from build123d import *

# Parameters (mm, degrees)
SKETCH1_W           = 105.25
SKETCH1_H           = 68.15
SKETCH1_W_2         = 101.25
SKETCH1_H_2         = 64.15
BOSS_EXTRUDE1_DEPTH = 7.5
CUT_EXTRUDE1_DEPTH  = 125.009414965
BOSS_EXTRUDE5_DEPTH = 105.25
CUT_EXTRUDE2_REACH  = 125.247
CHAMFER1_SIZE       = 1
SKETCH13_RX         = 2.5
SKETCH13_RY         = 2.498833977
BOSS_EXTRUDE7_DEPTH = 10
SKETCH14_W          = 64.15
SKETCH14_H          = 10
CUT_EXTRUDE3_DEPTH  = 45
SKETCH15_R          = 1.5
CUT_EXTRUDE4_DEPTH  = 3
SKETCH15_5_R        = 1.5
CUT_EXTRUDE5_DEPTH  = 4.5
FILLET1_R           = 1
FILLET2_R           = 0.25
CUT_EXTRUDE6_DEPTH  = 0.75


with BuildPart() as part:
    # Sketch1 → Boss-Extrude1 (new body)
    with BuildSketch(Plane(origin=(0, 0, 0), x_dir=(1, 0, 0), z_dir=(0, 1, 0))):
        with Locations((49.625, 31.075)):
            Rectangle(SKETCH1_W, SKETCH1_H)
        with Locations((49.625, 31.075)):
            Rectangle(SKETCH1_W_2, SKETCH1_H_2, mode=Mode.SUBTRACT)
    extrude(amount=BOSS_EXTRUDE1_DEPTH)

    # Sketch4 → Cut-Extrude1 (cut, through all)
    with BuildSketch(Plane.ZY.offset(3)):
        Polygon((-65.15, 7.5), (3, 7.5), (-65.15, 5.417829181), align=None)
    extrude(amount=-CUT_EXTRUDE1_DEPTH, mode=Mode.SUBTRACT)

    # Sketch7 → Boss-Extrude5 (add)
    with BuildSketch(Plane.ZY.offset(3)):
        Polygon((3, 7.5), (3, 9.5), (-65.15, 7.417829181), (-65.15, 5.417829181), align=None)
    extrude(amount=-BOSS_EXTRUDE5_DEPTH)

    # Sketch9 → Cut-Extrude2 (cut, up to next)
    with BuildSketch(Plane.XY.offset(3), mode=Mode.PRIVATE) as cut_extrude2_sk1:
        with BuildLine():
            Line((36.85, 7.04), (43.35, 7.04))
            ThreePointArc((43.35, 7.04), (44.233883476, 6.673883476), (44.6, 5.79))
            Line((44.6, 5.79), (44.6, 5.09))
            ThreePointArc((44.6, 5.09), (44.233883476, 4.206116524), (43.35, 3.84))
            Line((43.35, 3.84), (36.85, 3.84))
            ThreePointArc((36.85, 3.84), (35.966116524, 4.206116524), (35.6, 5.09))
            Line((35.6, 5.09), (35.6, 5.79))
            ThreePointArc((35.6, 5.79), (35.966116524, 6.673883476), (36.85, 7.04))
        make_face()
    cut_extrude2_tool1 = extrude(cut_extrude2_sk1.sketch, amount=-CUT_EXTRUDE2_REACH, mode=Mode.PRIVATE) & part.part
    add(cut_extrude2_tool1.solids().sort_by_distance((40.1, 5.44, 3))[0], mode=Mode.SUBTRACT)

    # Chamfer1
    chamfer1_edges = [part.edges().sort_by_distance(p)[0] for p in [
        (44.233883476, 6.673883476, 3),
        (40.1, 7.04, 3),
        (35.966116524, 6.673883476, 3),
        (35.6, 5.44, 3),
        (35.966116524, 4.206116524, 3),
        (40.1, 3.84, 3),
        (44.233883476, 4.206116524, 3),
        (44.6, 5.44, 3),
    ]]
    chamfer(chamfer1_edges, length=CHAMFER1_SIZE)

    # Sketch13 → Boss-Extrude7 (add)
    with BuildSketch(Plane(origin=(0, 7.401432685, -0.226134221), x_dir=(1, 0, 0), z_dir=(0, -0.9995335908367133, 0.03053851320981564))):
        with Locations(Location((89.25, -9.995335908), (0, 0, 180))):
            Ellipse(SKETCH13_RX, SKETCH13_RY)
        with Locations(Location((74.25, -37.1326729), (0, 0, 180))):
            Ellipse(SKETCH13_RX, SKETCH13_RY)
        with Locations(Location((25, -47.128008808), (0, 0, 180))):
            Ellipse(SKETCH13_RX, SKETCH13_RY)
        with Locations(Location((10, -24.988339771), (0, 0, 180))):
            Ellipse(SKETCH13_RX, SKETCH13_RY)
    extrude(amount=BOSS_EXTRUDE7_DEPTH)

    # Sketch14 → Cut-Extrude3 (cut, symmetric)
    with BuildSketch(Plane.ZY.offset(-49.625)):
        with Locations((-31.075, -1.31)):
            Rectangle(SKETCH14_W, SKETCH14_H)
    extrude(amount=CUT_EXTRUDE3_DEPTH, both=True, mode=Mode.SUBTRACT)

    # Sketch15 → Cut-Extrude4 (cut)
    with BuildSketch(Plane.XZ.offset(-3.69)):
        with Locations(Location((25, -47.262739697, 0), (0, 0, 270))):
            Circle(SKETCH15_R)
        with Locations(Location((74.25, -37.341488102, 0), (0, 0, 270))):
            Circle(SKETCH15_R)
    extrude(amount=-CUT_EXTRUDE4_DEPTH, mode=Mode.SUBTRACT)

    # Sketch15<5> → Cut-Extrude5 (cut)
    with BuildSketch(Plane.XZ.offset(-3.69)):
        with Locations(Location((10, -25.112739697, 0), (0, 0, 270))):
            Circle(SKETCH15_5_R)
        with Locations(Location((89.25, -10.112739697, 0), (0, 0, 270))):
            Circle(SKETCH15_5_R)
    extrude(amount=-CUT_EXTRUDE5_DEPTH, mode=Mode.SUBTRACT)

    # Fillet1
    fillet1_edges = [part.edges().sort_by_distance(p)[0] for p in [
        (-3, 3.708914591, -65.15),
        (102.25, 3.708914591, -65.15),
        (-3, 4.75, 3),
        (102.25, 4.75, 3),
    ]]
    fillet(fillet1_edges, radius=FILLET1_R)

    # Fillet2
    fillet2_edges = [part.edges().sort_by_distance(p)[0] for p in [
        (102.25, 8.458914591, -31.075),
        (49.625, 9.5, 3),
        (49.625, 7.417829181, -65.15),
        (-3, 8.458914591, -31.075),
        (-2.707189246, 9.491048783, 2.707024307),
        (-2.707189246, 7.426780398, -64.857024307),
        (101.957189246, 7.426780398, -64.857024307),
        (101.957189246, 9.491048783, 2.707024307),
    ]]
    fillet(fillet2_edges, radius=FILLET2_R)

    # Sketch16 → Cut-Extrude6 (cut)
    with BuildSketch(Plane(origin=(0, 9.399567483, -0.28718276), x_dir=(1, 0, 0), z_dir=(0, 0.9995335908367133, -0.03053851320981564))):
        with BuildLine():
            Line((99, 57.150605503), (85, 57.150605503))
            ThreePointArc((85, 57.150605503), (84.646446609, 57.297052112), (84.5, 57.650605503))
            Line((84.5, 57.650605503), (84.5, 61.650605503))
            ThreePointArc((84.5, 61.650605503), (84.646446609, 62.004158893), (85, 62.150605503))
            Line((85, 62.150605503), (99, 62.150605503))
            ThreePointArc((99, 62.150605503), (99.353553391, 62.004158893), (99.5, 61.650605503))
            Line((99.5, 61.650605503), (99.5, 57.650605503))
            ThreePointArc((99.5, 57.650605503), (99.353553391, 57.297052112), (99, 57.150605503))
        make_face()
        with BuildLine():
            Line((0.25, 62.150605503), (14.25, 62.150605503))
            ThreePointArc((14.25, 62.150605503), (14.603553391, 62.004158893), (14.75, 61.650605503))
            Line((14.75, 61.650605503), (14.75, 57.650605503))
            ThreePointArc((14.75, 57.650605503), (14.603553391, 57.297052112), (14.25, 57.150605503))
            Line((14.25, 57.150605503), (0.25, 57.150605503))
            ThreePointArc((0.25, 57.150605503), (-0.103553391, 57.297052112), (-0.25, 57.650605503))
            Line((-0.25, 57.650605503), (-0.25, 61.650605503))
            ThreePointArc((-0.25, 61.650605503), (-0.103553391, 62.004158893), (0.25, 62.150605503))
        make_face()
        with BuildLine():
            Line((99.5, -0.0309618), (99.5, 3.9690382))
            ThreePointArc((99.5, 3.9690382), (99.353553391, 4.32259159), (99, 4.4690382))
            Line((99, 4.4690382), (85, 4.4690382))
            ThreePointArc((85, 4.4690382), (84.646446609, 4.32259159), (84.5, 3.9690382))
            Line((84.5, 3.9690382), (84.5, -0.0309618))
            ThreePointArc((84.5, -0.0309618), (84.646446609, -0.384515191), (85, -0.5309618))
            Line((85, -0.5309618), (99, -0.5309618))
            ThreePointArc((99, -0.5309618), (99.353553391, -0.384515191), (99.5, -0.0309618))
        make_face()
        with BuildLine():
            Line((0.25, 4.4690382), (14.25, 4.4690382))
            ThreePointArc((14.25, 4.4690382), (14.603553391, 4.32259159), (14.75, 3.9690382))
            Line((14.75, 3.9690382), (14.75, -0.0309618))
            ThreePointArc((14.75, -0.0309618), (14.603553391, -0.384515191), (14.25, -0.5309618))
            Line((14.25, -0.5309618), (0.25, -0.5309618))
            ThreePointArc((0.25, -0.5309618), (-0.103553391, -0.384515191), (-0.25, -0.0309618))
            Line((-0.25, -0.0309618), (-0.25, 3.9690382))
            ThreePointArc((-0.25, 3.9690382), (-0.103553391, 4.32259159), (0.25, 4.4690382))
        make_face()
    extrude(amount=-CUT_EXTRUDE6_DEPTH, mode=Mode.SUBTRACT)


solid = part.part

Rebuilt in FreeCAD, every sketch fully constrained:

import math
import FreeCAD as App
import Part
import Sketcher

V = App.Vector
Q = App.Units.Quantity


def edges_at(feature, points):
    """Names of the edges that pass closest to the given points."""
    edges = feature.Shape.Edges
    near = lambda p: min(range(len(edges)), key=lambda i: edges[i].distToShape(Part.Vertex(*p))[0])
    return sorted({f"Edge{near(p) + 1}" for p in points})

doc = App.newDocument("Part")
body = doc.addObject("PartDesign::Body", "Body")

sketch1 = doc.addObject("Sketcher::SketchObject", "Sketch")
body.addObject(sketch1)
sketch1.AttachmentSupport = (doc.XZ_Plane, [""])
sketch1.MapMode = "FlatFace"
sketch1.addGeometry([
    Part.LineSegment(V(-3, -65, 0), V(-3, 3, 0)),
    Part.LineSegment(V(-3, 3, 0), V(102, 3, 0)),
    Part.LineSegment(V(102, 3, 0), V(102, -65, 0)),
    Part.LineSegment(V(102, -65, 0), V(-3, -65, 0)),
    Part.LineSegment(V(100, 1, 0), V(-1, 1, 0)),
    Part.LineSegment(V(-1, 1, 0), V(-1, -63, 0)),
    Part.LineSegment(V(-1, -63, 0), V(100, -63, 0)),
    Part.LineSegment(V(100, -63, 0), V(100, 1, 0)),
], False)
sketch1.addConstraint([
    Sketcher.Constraint("Coincident", 0, 2, 1, 1),
    Sketcher.Constraint("Coincident", 1, 2, 2, 1),
    Sketcher.Constraint("Coincident", 2, 2, 3, 1),
    Sketcher.Constraint("Coincident", 3, 2, 0, 1),
    Sketcher.Constraint("Coincident", 4, 2, 5, 1),
    Sketcher.Constraint("Coincident", 5, 2, 6, 1),
    Sketcher.Constraint("Coincident", 6, 2, 7, 1),
    Sketcher.Constraint("Coincident", 7, 2, 4, 1),
    Sketcher.Constraint("Vertical", 0),
    Sketcher.Constraint("Horizontal", 1),
    Sketcher.Constraint("Vertical", 2),
    Sketcher.Constraint("Horizontal", 3),
    Sketcher.Constraint("Horizontal", 4),
    Sketcher.Constraint("Vertical", 5),
    Sketcher.Constraint("Horizontal", 6),
    Sketcher.Constraint("Vertical", 7),
    Sketcher.Constraint("DistanceX", 0, 2, -1, 1, 3.0),
    Sketcher.Constraint("DistanceY", -1, 1, 0, 2, 3.0),
    Sketcher.Constraint("DistanceX", 4, 2, -1, 1, 1.0),
    Sketcher.Constraint("DistanceY", -1, 1, 4, 2, 1.0),
    Sketcher.Constraint("DistanceY", 3, 2, 5, 2, 2.0),
    Sketcher.Constraint("DistanceX", 6, 2, 2, 2, 2.0),
    Sketcher.Constraint("DistanceX", 1, 1, 1, 2, 105.25),
    Sketcher.Constraint("DistanceY", 0, 1, 0, 2, 68.15),
])
pad1 = doc.addObject("PartDesign::Pad", "Pad")
body.addObject(pad1)
pad1.Profile = sketch1
pad1.Length = 7.5
pad1.Reversed = True

sketch2 = doc.addObject("Sketcher::SketchObject", "Sketch001")
body.addObject(sketch2)
sketch2.AttachmentSupport = (doc.YZ_Plane, [""])
sketch2.MapMode = "FlatFace"
sketch2.AttachmentOffset = App.Placement(V(0, 0, -3), App.Rotation())
sketch2.addGeometry([
    Part.LineSegment(V(7.5, 3, 0), V(7.5, -65.2, 0)),
    Part.LineSegment(V(7.5, -65.2, 0), V(5.4, -65.2, 0)),
    Part.LineSegment(V(5.4, -65.2, 0), V(7.5, 3, 0)),
], False)
sketch2.addConstraint([
    Sketcher.Constraint("Coincident", 0, 2, 1, 1),
    Sketcher.Constraint("Coincident", 1, 2, 2, 1),
    Sketcher.Constraint("Coincident", 2, 2, 0, 1),
    Sketcher.Constraint("Vertical", 0),
    Sketcher.Constraint("Horizontal", 1),
    Sketcher.Constraint("DistanceY", -1, 1, 2, 2, 3.0),
    Sketcher.Constraint("DistanceY", 0, 2, 0, 1, 68.15),
    Sketcher.Constraint("DistanceX", -1, 1, 0, 2, 7.5),
    Sketcher.Constraint("Angle", 2, Q("88.25 deg")),
])
pocket1 = doc.addObject("PartDesign::Pocket", "Pocket")
body.addObject(pocket1)
pocket1.Profile = sketch2
pocket1.Type = "ThroughAll"
pocket1.Reversed = True

sketch3 = doc.addObject("Sketcher::SketchObject", "Sketch002")
body.addObject(sketch3)
sketch3.AttachmentSupport = (doc.YZ_Plane, [""])
sketch3.MapMode = "FlatFace"
sketch3.AttachmentOffset = App.Placement(V(0, 0, -3), App.Rotation())
sketch3.addGeometry([
    Part.LineSegment(V(7.5, 3, 0), V(9.5, 3, 0)),
    Part.LineSegment(V(9.5, 3, 0), V(7.4, -65.2, 0)),
    Part.LineSegment(V(7.4, -65.2, 0), V(5.4, -65.2, 0)),
    Part.LineSegment(V(5.4, -65.2, 0), V(7.5, 3, 0)),
], False)
sketch3.addConstraint([
    Sketcher.Constraint("Coincident", 0, 2, 1, 1),
    Sketcher.Constraint("Coincident", 1, 2, 2, 1),
    Sketcher.Constraint("Coincident", 2, 2, 3, 1),
    Sketcher.Constraint("Coincident", 3, 2, 0, 1),
    Sketcher.Constraint("Horizontal", 0),
    Sketcher.Constraint("Horizontal", 2),
    Sketcher.Constraint("Parallel", 1, 3),
    Sketcher.Constraint("DistanceX", 0, 1, 0, 2, 2.0),
    Sketcher.Constraint("DistanceY", -1, 1, 0, 2, 3.0),
    Sketcher.Constraint("DistanceX", -1, 1, 0, 2, 9.5),
    Sketcher.Constraint("Angle", 1, Q("-91.75 deg")),
    Sketcher.Constraint("DistanceY", 1, 2, -1, 1, 65.15),
])
pad2 = doc.addObject("PartDesign::Pad", "Pad001")
body.addObject(pad2)
pad2.Profile = sketch3
pad2.Length = 105.25

sketch4 = doc.addObject("Sketcher::SketchObject", "Sketch003")
body.addObject(sketch4)
sketch4.AttachmentSupport = (doc.XY_Plane, [""])
sketch4.MapMode = "FlatFace"
sketch4.AttachmentOffset = App.Placement(V(0, 0, 3), App.Rotation())
sketch4.addGeometry([
    Part.LineSegment(V(43.4, 7, 0), V(36.9, 7, 0)),
    Part.ArcOfCircle(Part.Circle(V(36.9, 5.8, 0), V(0, 0, 1), 1.3), math.radians(90), math.radians(180)),
    Part.LineSegment(V(35.6, 5.8, 0), V(35.6, 5.1, 0)),
    Part.ArcOfCircle(Part.Circle(V(36.9, 5.1, 0), V(0, 0, 1), 1.3), math.radians(-180), math.radians(-90)),
    Part.LineSegment(V(36.9, 3.8, 0), V(43.4, 3.8, 0)),
    Part.ArcOfCircle(Part.Circle(V(43.3, 5.1, 0), V(0, 0, 1), 1.3), math.radians(-90), math.radians(0)),
    Part.LineSegment(V(44.6, 5.1, 0), V(44.6, 5.8, 0)),
    Part.ArcOfCircle(Part.Circle(V(43.3, 5.8, 0), V(0, 0, 1), 1.3), math.radians(0), math.radians(90)),
], False)
sketch4.addConstraint([
    Sketcher.Constraint("Tangent", 0, 2, 1, 1),
    Sketcher.Constraint("Tangent", 1, 2, 2, 1),
    Sketcher.Constraint("Tangent", 2, 2, 3, 1),
    Sketcher.Constraint("Tangent", 3, 2, 4, 1),
    Sketcher.Constraint("Tangent", 4, 2, 5, 1),
    Sketcher.Constraint("Tangent", 5, 2, 6, 1),
    Sketcher.Constraint("Tangent", 6, 2, 7, 1),
    Sketcher.Constraint("Tangent", 7, 2, 0, 1),
    Sketcher.Constraint("Horizontal", 0),
    Sketcher.Constraint("Vertical", 2),
    Sketcher.Constraint("Horizontal", 4),
    Sketcher.Constraint("Vertical", 6),
    Sketcher.Constraint("Equal", 1, 3),
    Sketcher.Constraint("Equal", 3, 5),
    Sketcher.Constraint("Equal", 5, 7),
    Sketcher.Constraint("Radius", 1, 1.25),
    Sketcher.Constraint("DistanceX", 0, 2, 0, 1, 6.5),
    Sketcher.Constraint("DistanceY", 2, 2, 2, 1, 0.7),
    Sketcher.Constraint("DistanceX", -1, 1, 1, 2, 35.6),
    Sketcher.Constraint("DistanceY", -1, 1, 1, 3, 5.79),
])
pocket2 = doc.addObject("PartDesign::Pocket", "Pocket001")
body.addObject(pocket2)
pocket2.Profile = sketch4
pocket2.Type = "UpToFirst"
doc.recompute()

chamfer = doc.addObject("PartDesign::Chamfer", "Chamfer")
body.addObject(chamfer)
chamfer.Base = (pocket2, edges_at(pocket2, [
    (44.234, 6.674, 3),
    (40.1, 7.04, 3),
    (35.966, 6.674, 3),
    (35.6, 5.44, 3),
    (35.966, 4.206, 3),
    (40.1, 3.84, 3),
    (44.234, 4.206, 3),
    (44.6, 5.44, 3),
]))
chamfer.Size = 1

sketch5 = doc.addObject("Sketcher::SketchObject", "Sketch004")
body.addObject(sketch5)
sketch5.Placement = App.Placement(V(0, 7.401433, -0.226134), App.Rotation(V(1, 0, 0), V(0, 0.030538513, 0.999533591), V(0, -0.999533591, 0.030538513), "ZXY"))
sketch5.addGeometry([
    Part.Ellipse(V(86.75, -9.995336, 0), V(89.25, -12.49417, 0), V(89.25, -9.995336, 0)),
    Part.Ellipse(V(71.75, -37.132673, 0), V(74.25, -39.631507, 0), V(74.25, -37.132673, 0)),
    Part.Ellipse(V(22.5, -47.128009, 0), V(25, -49.626843, 0), V(25, -47.128009, 0)),
    Part.Ellipse(V(7.5, -24.98834, 0), V(10, -27.487174, 0), V(10, -24.98834, 0)),
], False)
sketch5.addConstraint([
    Sketcher.Constraint("Block", 0),
    Sketcher.Constraint("Block", 1),
    Sketcher.Constraint("Block", 2),
    Sketcher.Constraint("Block", 3),
])
pad3 = doc.addObject("PartDesign::Pad", "Pad002")
body.addObject(pad3)
pad3.Profile = sketch5
pad3.Length = 10

sketch6 = doc.addObject("Sketcher::SketchObject", "Sketch005")
body.addObject(sketch6)
sketch6.AttachmentSupport = (doc.YZ_Plane, [""])
sketch6.MapMode = "FlatFace"
sketch6.AttachmentOffset = App.Placement(V(0, 0, 49.625), App.Rotation())
sketch6.addGeometry([
    Part.LineSegment(V(4, -63, 0), V(-6, -63, 0)),
    Part.LineSegment(V(-6, -63, 0), V(-6, 1, 0)),
    Part.LineSegment(V(-6, 1, 0), V(4, 1, 0)),
    Part.LineSegment(V(4, 1, 0), V(4, -63, 0)),
], False)
sketch6.addConstraint([
    Sketcher.Constraint("Coincident", 0, 2, 1, 1),
    Sketcher.Constraint("Coincident", 1, 2, 2, 1),
    Sketcher.Constraint("Coincident", 2, 2, 3, 1),
    Sketcher.Constraint("Coincident", 3, 2, 0, 1),
    Sketcher.Constraint("Horizontal", 0),
    Sketcher.Constraint("Vertical", 1),
    Sketcher.Constraint("Horizontal", 2),
    Sketcher.Constraint("Vertical", 3),
    Sketcher.Constraint("DistanceX", 0, 2, 0, 1, 10.0),
    Sketcher.Constraint("DistanceY", -1, 1, 1, 2, 1.0),
    Sketcher.Constraint("DistanceY", 1, 1, 1, 2, 64.15),
    Sketcher.Constraint("DistanceX", 0, 2, -1, 1, 6.31),
])
pocket3 = doc.addObject("PartDesign::Pocket", "Pocket002")
body.addObject(pocket3)
pocket3.Profile = sketch6
pocket3.Length = 90
pocket3.Midplane = True

sketch7 = doc.addObject("Sketcher::SketchObject", "Sketch006")
body.addObject(sketch7)
sketch7.AttachmentSupport = (doc.XZ_Plane, [""])
sketch7.MapMode = "FlatFace"
sketch7.AttachmentOffset = App.Placement(V(0, 0, -3.69), App.Rotation())
sketch7.addGeometry([
    Part.Circle(V(25, -47.3, 0), V(0, 0, 1), 1.5),
    Part.Circle(V(74.2, -37.3, 0), V(0, 0, 1), 1.5),
], False)
sketch7.addConstraint([
    Sketcher.Constraint("Equal", 0, 1),
    Sketcher.Constraint("Diameter", 0, 3.0),
    Sketcher.Constraint("DistanceX", -1, 1, 0, 3, 25.0),
    Sketcher.Constraint("DistanceX", -1, 1, 1, 3, 74.25),
    Sketcher.Constraint("DistanceY", 0, 3, -1, 1, 47.26274),
    Sketcher.Constraint("DistanceY", 1, 3, -1, 1, 37.341488),
])
pocket4 = doc.addObject("PartDesign::Pocket", "Pocket003")
body.addObject(pocket4)
pocket4.Profile = sketch7
pocket4.Length = 3

sketch8 = doc.addObject("Sketcher::SketchObject", "Sketch007")
body.addObject(sketch8)
sketch8.AttachmentSupport = (doc.XZ_Plane, [""])
sketch8.MapMode = "FlatFace"
sketch8.AttachmentOffset = App.Placement(V(0, 0, -3.69), App.Rotation())
sketch8.addGeometry([
    Part.Circle(V(10, -25.1, 0), V(0, 0, 1), 1.5),
    Part.Circle(V(89.2, -10.1, 0), V(0, 0, 1), 1.5),
], False)
sketch8.addConstraint([
    Sketcher.Constraint("Equal", 0, 1),
    Sketcher.Constraint("Diameter", 0, 3.0),
    Sketcher.Constraint("DistanceX", -1, 1, 0, 3, 10.0),
    Sketcher.Constraint("DistanceY", 0, 3, 1, 3, 15.0),
    Sketcher.Constraint("DistanceX", -1, 1, 1, 3, 89.25),
    Sketcher.Constraint("DistanceY", 0, 3, -1, 1, 25.11274),
])
pocket5 = doc.addObject("PartDesign::Pocket", "Pocket004")
body.addObject(pocket5)
pocket5.Profile = sketch8
pocket5.Length = 4.5
doc.recompute()

fillet = doc.addObject("PartDesign::Fillet", "Fillet")
body.addObject(fillet)
fillet.Base = (pocket5, edges_at(pocket5, [
    (-3, 3.709, -65.15),
    (102.25, 3.709, -65.15),
    (-3, 4.75, 3),
    (102.25, 4.75, 3),
]))
fillet.Radius = 1
doc.recompute()

fillet2 = doc.addObject("PartDesign::Fillet", "Fillet001")
body.addObject(fillet2)
fillet2.Base = (fillet, edges_at(fillet, [
    (102.25, 8.459, -31.075),
    (49.625, 9.5, 3),
    (49.625, 7.418, -65.15),
    (-3, 8.459, -31.075),
    (-2.707, 9.491, 2.707),
    (-2.707, 7.427, -64.857),
    (101.957, 7.427, -64.857),
    (101.957, 9.491, 2.707),
]))
fillet2.Radius = 0.25

sketch9 = doc.addObject("Sketcher::SketchObject", "Sketch008")
body.addObject(sketch9)
sketch9.Placement = App.Placement(V(0, 9.399567, -0.287183), App.Rotation(V(1, 0, 0), V(0, -0.030538513, -0.999533591), V(0, 0.999533591, -0.030538513), "ZXY"))
sketch9.addGeometry([
    Part.LineSegment(V(85, 57.15, 0), V(99, 57.15, 0)),
    Part.ArcOfCircle(Part.Circle(V(99, 57.65, 0), V(0, 0, 1), 0.5), math.radians(-90), math.radians(0)),
    Part.LineSegment(V(99.5, 57.65, 0), V(99.5, 61.65, 0)),
    Part.ArcOfCircle(Part.Circle(V(99, 61.65, 0), V(0, 0, 1), 0.5), math.radians(0), math.radians(90)),
    Part.LineSegment(V(99, 62.15, 0), V(85, 62.15, 0)),
    Part.ArcOfCircle(Part.Circle(V(85, 61.65, 0), V(0, 0, 1), 0.5), math.radians(90), math.radians(180)),
    Part.LineSegment(V(84.5, 61.65, 0), V(84.5, 57.65, 0)),
    Part.ArcOfCircle(Part.Circle(V(85, 57.65, 0), V(0, 0, 1), 0.5), math.radians(180), math.radians(270)),
    Part.LineSegment(V(14.25, 62.15, 0), V(0.25, 62.15, 0)),
    Part.ArcOfCircle(Part.Circle(V(0.25, 61.65, 0), V(0, 0, 1), 0.5), math.radians(90), math.radians(180)),
    Part.LineSegment(V(-0.25, 61.65, 0), V(-0.25, 57.65, 0)),
    Part.ArcOfCircle(Part.Circle(V(0.25, 57.65, 0), V(0, 0, 1), 0.5), math.radians(180), math.radians(270)),
    Part.LineSegment(V(0.25, 57.15, 0), V(14.25, 57.15, 0)),
    Part.ArcOfCircle(Part.Circle(V(14.25, 57.65, 0), V(0, 0, 1), 0.5), math.radians(-90), math.radians(0)),
    Part.LineSegment(V(14.75, 57.65, 0), V(14.75, 61.65, 0)),
    Part.ArcOfCircle(Part.Circle(V(14.25, 61.65, 0), V(0, 0, 1), 0.5), math.radians(0), math.radians(90)),
    Part.LineSegment(V(99.5, -0.03, 0), V(99.5, 3.97, 0)),
    Part.ArcOfCircle(Part.Circle(V(99, 3.97, 0), V(0, 0, 1), 0.5), math.radians(0), math.radians(90)),
    Part.LineSegment(V(99, 4.47, 0), V(85, 4.47, 0)),
    Part.ArcOfCircle(Part.Circle(V(85, 3.97, 0), V(0, 0, 1), 0.5), math.radians(90), math.radians(180)),
    Part.LineSegment(V(84.5, 3.97, 0), V(84.5, -0.03, 0)),
    Part.ArcOfCircle(Part.Circle(V(85, -0.03, 0), V(0, 0, 1), 0.5), math.radians(180), math.radians(270)),
    Part.LineSegment(V(85, -0.53, 0), V(99, -0.53, 0)),
    Part.ArcOfCircle(Part.Circle(V(99, -0.03, 0), V(0, 0, 1), 0.5), math.radians(-90), math.radians(0)),
    Part.LineSegment(V(14.25, 4.47, 0), V(0.25, 4.47, 0)),
    Part.ArcOfCircle(Part.Circle(V(0.25, 3.97, 0), V(0, 0, 1), 0.5), math.radians(90), math.radians(180)),
    Part.LineSegment(V(-0.25, 3.97, 0), V(-0.25, -0.03, 0)),
    Part.ArcOfCircle(Part.Circle(V(0.25, -0.03, 0), V(0, 0, 1), 0.5), math.radians(180), math.radians(270)),
    Part.LineSegment(V(0.25, -0.53, 0), V(14.25, -0.53, 0)),
    Part.ArcOfCircle(Part.Circle(V(14.25, -0.03, 0), V(0, 0, 1), 0.5), math.radians(-90), math.radians(0)),
    Part.LineSegment(V(14.75, -0.03, 0), V(14.75, 3.97, 0)),
    Part.ArcOfCircle(Part.Circle(V(14.25, 3.97, 0), V(0, 0, 1), 0.5), math.radians(0), math.radians(90)),
], False)
sketch9.addConstraint([
    Sketcher.Constraint("Tangent", 0, 2, 1, 1),
    Sketcher.Constraint("Tangent", 1, 2, 2, 1),
    Sketcher.Constraint("Tangent", 2, 2, 3, 1),
    Sketcher.Constraint("Tangent", 3, 2, 4, 1),
    Sketcher.Constraint("Tangent", 4, 2, 5, 1),
    Sketcher.Constraint("Tangent", 5, 2, 6, 1),
    Sketcher.Constraint("Tangent", 6, 2, 7, 1),
    Sketcher.Constraint("Tangent", 7, 2, 0, 1),
    Sketcher.Constraint("Tangent", 8, 2, 9, 1),
    Sketcher.Constraint("Tangent", 9, 2, 10, 1),
    Sketcher.Constraint("Tangent", 10, 2, 11, 1),
    Sketcher.Constraint("Tangent", 11, 2, 12, 1),
    Sketcher.Constraint("Tangent", 12, 2, 13, 1),
    Sketcher.Constraint("Tangent", 13, 2, 14, 1),
    Sketcher.Constraint("Tangent", 14, 2, 15, 1),
    Sketcher.Constraint("Tangent", 15, 2, 8, 1),
    Sketcher.Constraint("Tangent", 16, 2, 17, 1),
    Sketcher.Constraint("Tangent", 17, 2, 18, 1),
    Sketcher.Constraint("Tangent", 18, 2, 19, 1),
    Sketcher.Constraint("Tangent", 19, 2, 20, 1),
    Sketcher.Constraint("Tangent", 20, 2, 21, 1),
    Sketcher.Constraint("Tangent", 21, 2, 22, 1),
    Sketcher.Constraint("Tangent", 22, 2, 23, 1),
    Sketcher.Constraint("Tangent", 23, 2, 16, 1),
    Sketcher.Constraint("Tangent", 24, 2, 25, 1),
    Sketcher.Constraint("Tangent", 25, 2, 26, 1),
    Sketcher.Constraint("Tangent", 26, 2, 27, 1),
    Sketcher.Constraint("Tangent", 27, 2, 28, 1),
    Sketcher.Constraint("Tangent", 28, 2, 29, 1),
    Sketcher.Constraint("Tangent", 29, 2, 30, 1),
    Sketcher.Constraint("Tangent", 30, 2, 31, 1),
    Sketcher.Constraint("Tangent", 31, 2, 24, 1),
    Sketcher.Constraint("Horizontal", 0),
    Sketcher.Constraint("Vertical", 2),
    Sketcher.Constraint("Horizontal", 4),
    Sketcher.Constraint("Vertical", 6),
    Sketcher.Constraint("Horizontal", 8),
    Sketcher.Constraint("Vertical", 10),
    Sketcher.Constraint("Horizontal", 12),
    Sketcher.Constraint("Vertical", 14),
    Sketcher.Constraint("Vertical", 16),
    Sketcher.Constraint("Horizontal", 18),
    Sketcher.Constraint("Vertical", 20),
    Sketcher.Constraint("Horizontal", 22),
    Sketcher.Constraint("Horizontal", 24),
    Sketcher.Constraint("Vertical", 26),
    Sketcher.Constraint("Horizontal", 28),
    Sketcher.Constraint("Vertical", 30),
    Sketcher.Constraint("Equal", 1, 3),
    Sketcher.Constraint("Equal", 3, 5),
    Sketcher.Constraint("Equal", 5, 7),
    Sketcher.Constraint("Equal", 7, 9),
    Sketcher.Constraint("Equal", 9, 11),
    Sketcher.Constraint("Equal", 11, 13),
    Sketcher.Constraint("Equal", 13, 15),
    Sketcher.Constraint("Equal", 15, 17),
    Sketcher.Constraint("Equal", 17, 19),
    Sketcher.Constraint("Equal", 19, 21),
    Sketcher.Constraint("Equal", 21, 23),
    Sketcher.Constraint("Equal", 23, 25),
    Sketcher.Constraint("Equal", 25, 27),
    Sketcher.Constraint("Equal", 27, 29),
    Sketcher.Constraint("Equal", 29, 31),
    Sketcher.Constraint("Horizontal", 5, 3, 9, 3),
    Sketcher.Constraint("Horizontal", 7, 3, 11, 3),
    Sketcher.Constraint("Horizontal", 19, 3, 25, 3),
    Sketcher.Constraint("Horizontal", 23, 3, 27, 3),
    Sketcher.Constraint("Vertical", 3, 3, 17, 3),
    Sketcher.Constraint("Vertical", 7, 3, 19, 3),
    Sketcher.Constraint("Vertical", 11, 3, 25, 3),
    Sketcher.Constraint("Vertical", 15, 3, 29, 3),
    Sketcher.Constraint("Equal", 4, 8),
    Sketcher.Constraint("Equal", 14, 16),
    Sketcher.Constraint("Radius", 1, 0.5),
    Sketcher.Constraint("DistanceX", 0, 1, 0, 2, 14.0),
    Sketcher.Constraint("DistanceY", 2, 1, 2, 2, 4.0),
    Sketcher.Constraint("DistanceX", -1, 1, 1, 3, 99.0),
    Sketcher.Constraint("DistanceX", -1, 1, 9, 3, 0.25),
    Sketcher.Constraint("DistanceY", -1, 1, 17, 3, 3.969038),
    Sketcher.Constraint("DistanceY", -1, 1, 1, 3, 57.650606),
])
pocket6 = doc.addObject("PartDesign::Pocket", "Pocket005")
body.addObject(pocket6)
pocket6.Profile = sketch9
pocket6.Length = 0.75

doc.recompute()
